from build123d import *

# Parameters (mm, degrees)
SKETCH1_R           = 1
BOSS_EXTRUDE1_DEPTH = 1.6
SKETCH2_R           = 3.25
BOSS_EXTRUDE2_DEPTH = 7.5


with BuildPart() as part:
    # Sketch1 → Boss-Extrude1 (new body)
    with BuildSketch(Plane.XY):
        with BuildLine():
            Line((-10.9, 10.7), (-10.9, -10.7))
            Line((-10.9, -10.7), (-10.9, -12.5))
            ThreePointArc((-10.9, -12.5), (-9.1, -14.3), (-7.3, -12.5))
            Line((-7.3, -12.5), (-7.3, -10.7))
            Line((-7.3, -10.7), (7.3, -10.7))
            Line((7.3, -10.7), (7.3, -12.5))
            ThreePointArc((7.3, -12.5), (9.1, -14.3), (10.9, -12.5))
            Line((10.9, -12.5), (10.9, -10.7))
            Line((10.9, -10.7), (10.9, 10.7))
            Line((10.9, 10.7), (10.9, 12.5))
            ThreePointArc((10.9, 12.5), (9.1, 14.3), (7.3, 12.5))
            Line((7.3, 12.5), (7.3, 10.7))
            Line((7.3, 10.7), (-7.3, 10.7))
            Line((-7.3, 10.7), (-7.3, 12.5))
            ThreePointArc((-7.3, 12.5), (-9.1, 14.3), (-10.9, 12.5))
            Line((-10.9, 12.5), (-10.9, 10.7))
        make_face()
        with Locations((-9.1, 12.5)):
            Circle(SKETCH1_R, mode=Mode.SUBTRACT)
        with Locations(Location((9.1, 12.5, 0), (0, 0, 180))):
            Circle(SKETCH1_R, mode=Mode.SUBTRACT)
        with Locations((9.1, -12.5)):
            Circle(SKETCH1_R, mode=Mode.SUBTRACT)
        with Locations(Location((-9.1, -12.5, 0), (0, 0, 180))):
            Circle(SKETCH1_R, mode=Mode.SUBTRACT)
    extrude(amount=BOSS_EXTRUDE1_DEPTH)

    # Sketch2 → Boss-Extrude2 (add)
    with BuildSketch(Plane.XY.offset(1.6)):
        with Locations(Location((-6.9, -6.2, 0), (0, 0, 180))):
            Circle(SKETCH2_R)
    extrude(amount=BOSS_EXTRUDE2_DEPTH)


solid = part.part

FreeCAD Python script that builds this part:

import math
import FreeCAD as App
import Part
import Sketcher

V = App.Vector

doc = App.newDocument("Part")
body = doc.addObject("PartDesign::Body", "Body")

sketch1 = body.newObject("Sketcher::SketchObject", "Sketch")
sketch1.AttachmentSupport = (doc.getObject("XY_Plane"), [""])
sketch1.MapMode = "FlatFace"
sketch1.addGeometry([
    Part.ArcOfCircle(Part.Circle(V(-9.1, -12.5, 0), V(0, 0, 1), 1.8), math.radians(180), math.radians(360)),
    Part.LineSegment(V(-7.3, -12.5, 0), V(-7.3, -10.7, 0)),
    Part.LineSegment(V(-7.3, -10.7, 0), V(7.3, -10.7, 0)),
    Part.LineSegment(V(7.3, -10.7, 0), V(7.3, -12.5, 0)),
    Part.ArcOfCircle(Part.Circle(V(9.1, -12.5, 0), V(0, 0, 1), 1.8), math.radians(180), math.radians(360)),
    Part.LineSegment(V(10.9, -12.5, 0), V(10.9, 12.5, 0)),
    Part.ArcOfCircle(Part.Circle(V(9.1, 12.5, 0), V(0, 0, 1), 1.8), math.radians(0), math.radians(180)),
    Part.LineSegment(V(7.3, 12.5, 0), V(7.3, 10.7, 0)),
    Part.LineSegment(V(7.3, 10.7, 0), V(-7.3, 10.7, 0)),
    Part.LineSegment(V(-7.3, 10.7, 0), V(-7.3, 12.5, 0)),
    Part.ArcOfCircle(Part.Circle(V(-9.1, 12.5, 0), V(0, 0, 1), 1.8), math.radians(0), math.radians(180)),
    Part.LineSegment(V(-10.9, 12.5, 0), V(-10.9, -12.5, 0)),
    Part.Circle(V(-9.1, -12.5, 0), V(0, 0, 1), 1),
    Part.Circle(V(9.1, -12.5, 0), V(0, 0, 1), 1),
    Part.Circle(V(-9.1, 12.5, 0), V(0, 0, 1), 1),
    Part.Circle(V(9.1, 12.5, 0), V(0, 0, 1), 1),
], False)
sketch1.addConstraint([
    Sketcher.Constraint("Tangent", 0, 2, 1, 1),
    Sketcher.Constraint("Coincident", 1, 2, 2, 1),
    Sketcher.Constraint("Coincident", 2, 2, 3, 1),
    Sketcher.Constraint("Tangent", 3, 2, 4, 1),
    Sketcher.Constraint("Tangent", 4, 2, 5, 1),
    Sketcher.Constraint("Tangent", 5, 2, 6, 1),
    Sketcher.Constraint("Tangent", 6, 2, 7, 1),
    Sketcher.Constraint("Coincident", 7, 2, 8, 1),
    Sketcher.Constraint("Coincident", 8, 2, 9, 1),
    Sketcher.Constraint("Tangent", 9, 2, 10, 1),
    Sketcher.Constraint("Tangent", 10, 2, 11, 1),
    Sketcher.Constraint("Tangent", 11, 2, 0, 1),
    Sketcher.Constraint("Vertical", 1),
    Sketcher.Constraint("Horizontal", 2),
    Sketcher.Constraint("Vertical", 3),
    Sketcher.Constraint("Vertical", 5),
    Sketcher.Constraint("Vertical", 7),
    Sketcher.Constraint("Horizontal", 8),
    Sketcher.Constraint("Vertical", 9),
    Sketcher.Constraint("Vertical", 11),
    Sketcher.Constraint("Coincident", 12, 3, 0, 3),
    Sketcher.Constraint("Coincident", 13, 3, 4, 3),
    Sketcher.Constraint("Coincident", 14, 3, 10, 3),
    Sketcher.Constraint("Coincident", 15, 3, 6, 3),
    Sketcher.Constraint("Equal", 0, 4),
    Sketcher.Constraint("Equal", 4, 6),
    Sketcher.Constraint("Equal", 6, 10),
    Sketcher.Constraint("Equal", 12, 13),
    Sketcher.Constraint("Equal", 13, 14),
    Sketcher.Constraint("Equal", 14, 15),
    Sketcher.Constraint("Symmetric", 0, 3, 6, 3, -1, 1),
    Sketcher.Constraint("Horizontal", 0, 3, 4, 3),
    Sketcher.Constraint("Horizontal", 6, 3, 10, 3),
    Sketcher.Constraint("Equal", 3, 7),
    Sketcher.Constraint("Diameter", 12, 2.0),
    Sketcher.Constraint("Radius", 0, 1.8),
    Sketcher.Constraint("DistanceY", 5, 1, 5, 2, 25.0),
    Sketcher.Constraint("DistanceX", 2, 1, 2, 2, 14.6),
    Sketcher.Constraint("DistanceY", 1, 1, 1, 2, 1.8),
])
pad1 = body.newObject("PartDesign::Pad", "Pad")
pad1.Profile = sketch1
pad1.Length = 1.6

sketch2 = body.newObject("Sketcher::SketchObject", "Sketch001")
sketch2.AttachmentSupport = (doc.getObject("XY_Plane"), [""])
sketch2.MapMode = "FlatFace"
sketch2.AttachmentOffset = App.Placement(V(0, 0, 1.6), App.Rotation())
sketch2.addGeometry(Part.Circle(V(-6.9, -6.2, 0), V(0, 0, 1), 3.2), False)
sketch2.addConstraint([
    Sketcher.Constraint("Diameter", 0, 6.5),
    Sketcher.Constraint("DistanceX", 0, 3, -1, 1, 6.9),
    Sketcher.Constraint("DistanceY", 0, 3, -1, 1, 6.2),
])
pad2 = body.newObject("PartDesign::Pad", "Pad001")
pad2.Profile = sketch2
pad2.Length = 7.5

doc.recompute()
